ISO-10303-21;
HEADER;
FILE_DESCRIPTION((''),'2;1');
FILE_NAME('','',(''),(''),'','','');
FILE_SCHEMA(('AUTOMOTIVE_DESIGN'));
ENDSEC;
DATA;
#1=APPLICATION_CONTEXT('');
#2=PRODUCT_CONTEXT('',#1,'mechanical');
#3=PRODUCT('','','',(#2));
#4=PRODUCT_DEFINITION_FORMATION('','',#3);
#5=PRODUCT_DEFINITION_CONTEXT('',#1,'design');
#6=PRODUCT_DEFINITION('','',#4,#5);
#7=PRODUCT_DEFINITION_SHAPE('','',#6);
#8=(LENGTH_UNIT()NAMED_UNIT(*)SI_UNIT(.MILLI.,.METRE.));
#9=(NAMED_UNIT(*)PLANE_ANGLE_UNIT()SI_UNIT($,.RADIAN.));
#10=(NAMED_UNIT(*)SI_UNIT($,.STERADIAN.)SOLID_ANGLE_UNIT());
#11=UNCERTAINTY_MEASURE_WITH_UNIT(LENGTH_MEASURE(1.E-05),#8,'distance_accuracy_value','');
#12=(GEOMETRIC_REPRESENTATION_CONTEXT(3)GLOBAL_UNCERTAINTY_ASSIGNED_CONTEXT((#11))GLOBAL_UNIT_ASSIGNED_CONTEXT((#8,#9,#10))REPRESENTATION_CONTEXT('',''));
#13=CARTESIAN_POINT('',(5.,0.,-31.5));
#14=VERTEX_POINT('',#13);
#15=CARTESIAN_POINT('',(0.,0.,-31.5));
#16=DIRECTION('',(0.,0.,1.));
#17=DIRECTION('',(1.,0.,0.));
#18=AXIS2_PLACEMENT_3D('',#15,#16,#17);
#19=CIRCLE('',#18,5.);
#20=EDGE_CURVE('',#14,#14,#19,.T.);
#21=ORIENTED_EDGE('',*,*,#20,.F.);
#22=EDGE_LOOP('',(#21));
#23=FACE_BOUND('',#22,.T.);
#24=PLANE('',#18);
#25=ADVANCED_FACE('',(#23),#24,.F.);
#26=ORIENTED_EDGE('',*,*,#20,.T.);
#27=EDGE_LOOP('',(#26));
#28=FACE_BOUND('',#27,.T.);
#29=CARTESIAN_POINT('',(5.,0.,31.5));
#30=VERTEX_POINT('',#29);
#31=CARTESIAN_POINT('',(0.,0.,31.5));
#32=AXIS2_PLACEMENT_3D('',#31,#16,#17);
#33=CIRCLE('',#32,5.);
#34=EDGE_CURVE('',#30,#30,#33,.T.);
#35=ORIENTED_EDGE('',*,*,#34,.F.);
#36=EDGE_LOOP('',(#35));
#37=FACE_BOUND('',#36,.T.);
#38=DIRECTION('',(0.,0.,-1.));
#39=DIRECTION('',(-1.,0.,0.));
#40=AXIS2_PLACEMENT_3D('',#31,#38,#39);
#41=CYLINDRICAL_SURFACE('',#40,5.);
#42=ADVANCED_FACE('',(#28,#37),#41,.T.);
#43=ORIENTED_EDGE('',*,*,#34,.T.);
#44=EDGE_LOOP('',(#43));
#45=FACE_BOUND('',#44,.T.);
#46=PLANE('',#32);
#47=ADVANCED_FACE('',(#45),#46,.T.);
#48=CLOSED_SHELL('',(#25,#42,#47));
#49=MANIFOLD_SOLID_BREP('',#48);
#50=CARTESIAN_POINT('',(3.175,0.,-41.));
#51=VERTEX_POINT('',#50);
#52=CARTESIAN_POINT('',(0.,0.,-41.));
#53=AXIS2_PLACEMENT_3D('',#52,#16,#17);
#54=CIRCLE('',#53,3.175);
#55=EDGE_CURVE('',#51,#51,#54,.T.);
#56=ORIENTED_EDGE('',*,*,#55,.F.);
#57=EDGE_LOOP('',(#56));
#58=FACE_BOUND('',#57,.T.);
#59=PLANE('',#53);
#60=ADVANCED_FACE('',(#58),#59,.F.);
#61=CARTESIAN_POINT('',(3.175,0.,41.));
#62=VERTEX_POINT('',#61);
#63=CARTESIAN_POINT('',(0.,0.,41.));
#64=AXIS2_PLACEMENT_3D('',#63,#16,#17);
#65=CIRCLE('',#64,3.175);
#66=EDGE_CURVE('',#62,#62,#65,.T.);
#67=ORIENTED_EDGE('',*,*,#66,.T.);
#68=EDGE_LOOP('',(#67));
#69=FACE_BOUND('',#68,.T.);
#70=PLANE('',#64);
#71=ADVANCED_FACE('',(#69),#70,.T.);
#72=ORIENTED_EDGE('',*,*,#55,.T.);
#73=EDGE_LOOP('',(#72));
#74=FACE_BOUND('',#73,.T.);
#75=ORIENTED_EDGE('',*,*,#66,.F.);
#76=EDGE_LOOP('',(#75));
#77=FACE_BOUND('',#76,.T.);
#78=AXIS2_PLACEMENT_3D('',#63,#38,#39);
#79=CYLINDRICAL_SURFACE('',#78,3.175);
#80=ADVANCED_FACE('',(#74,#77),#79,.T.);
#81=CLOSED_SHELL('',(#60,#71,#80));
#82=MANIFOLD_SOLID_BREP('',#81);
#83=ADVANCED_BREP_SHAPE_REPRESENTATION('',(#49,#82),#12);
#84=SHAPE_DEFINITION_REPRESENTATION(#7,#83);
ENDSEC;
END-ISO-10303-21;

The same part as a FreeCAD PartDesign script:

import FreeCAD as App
import Part
import Sketcher
from FreeCAD import Vector
Q = App.Units.Quantity

doc = App.newDocument("Part")
params = doc.addObject("Spreadsheet::Sheet", "Params")
for row, (alias, value) in enumerate([
    ("sketch1_diameter", "6.35 mm"),
    ("pad1_length", "82 mm"),
    ("sketch2_diameter", "10 mm"),
    ("pad2_length", "63 mm"),
], start=1):
    params.set(f"A{row}", alias)
    params.set(f"B{row}", "=" + value)
    params.setAlias(f"B{row}", alias)

body = doc.addObject("PartDesign::Body", "Body")

sketch1 = body.newObject("Sketcher::SketchObject", "Sketch")
sketch1.AttachmentSupport = (doc.getObject("XY_Plane"), [""])
sketch1.MapMode = "FlatFace"
sketch1.addGeometry(Part.Circle(Vector(0, 0, 0), Vector(0, 0, 1), 3.2), False)
sketch1.addConstraint([
    Sketcher.Constraint("Coincident", 0, 3, -1, 1),
    Sketcher.Constraint("Diameter", 0, Q("6.35 mm")),
])
sketch1.setExpression("Constraints[1]", "Params.sketch1_diameter")
pad1 = body.newObject("PartDesign::Pad", "Pad")
pad1.Profile = sketch1
pad1.setExpression("Length", "Params.pad1_length")
pad1.Midplane = True
body2 = doc.addObject("PartDesign::Body", "Body001")

sketch2 = body2.newObject("Sketcher::SketchObject", "Sketch001")
sketch2.AttachmentSupport = (doc.getObject("XY_Plane001"), [""])
sketch2.MapMode = "FlatFace"
sketch2.addGeometry(Part.Circle(Vector(0, 0, 0), Vector(0, 0, 1), 5), False)
sketch2.addConstraint([
    Sketcher.Constraint("Coincident", 0, 3, -1, 1),
    Sketcher.Constraint("Diameter", 0, Q("10 mm")),
])
sketch2.setExpression("Constraints[1]", "Params.sketch2_diameter")
pad2 = body2.newObject("PartDesign::Pad", "Pad001")
pad2.Profile = sketch2
pad2.setExpression("Length", "Params.pad2_length")
pad2.Midplane = True

doc.recompute()
